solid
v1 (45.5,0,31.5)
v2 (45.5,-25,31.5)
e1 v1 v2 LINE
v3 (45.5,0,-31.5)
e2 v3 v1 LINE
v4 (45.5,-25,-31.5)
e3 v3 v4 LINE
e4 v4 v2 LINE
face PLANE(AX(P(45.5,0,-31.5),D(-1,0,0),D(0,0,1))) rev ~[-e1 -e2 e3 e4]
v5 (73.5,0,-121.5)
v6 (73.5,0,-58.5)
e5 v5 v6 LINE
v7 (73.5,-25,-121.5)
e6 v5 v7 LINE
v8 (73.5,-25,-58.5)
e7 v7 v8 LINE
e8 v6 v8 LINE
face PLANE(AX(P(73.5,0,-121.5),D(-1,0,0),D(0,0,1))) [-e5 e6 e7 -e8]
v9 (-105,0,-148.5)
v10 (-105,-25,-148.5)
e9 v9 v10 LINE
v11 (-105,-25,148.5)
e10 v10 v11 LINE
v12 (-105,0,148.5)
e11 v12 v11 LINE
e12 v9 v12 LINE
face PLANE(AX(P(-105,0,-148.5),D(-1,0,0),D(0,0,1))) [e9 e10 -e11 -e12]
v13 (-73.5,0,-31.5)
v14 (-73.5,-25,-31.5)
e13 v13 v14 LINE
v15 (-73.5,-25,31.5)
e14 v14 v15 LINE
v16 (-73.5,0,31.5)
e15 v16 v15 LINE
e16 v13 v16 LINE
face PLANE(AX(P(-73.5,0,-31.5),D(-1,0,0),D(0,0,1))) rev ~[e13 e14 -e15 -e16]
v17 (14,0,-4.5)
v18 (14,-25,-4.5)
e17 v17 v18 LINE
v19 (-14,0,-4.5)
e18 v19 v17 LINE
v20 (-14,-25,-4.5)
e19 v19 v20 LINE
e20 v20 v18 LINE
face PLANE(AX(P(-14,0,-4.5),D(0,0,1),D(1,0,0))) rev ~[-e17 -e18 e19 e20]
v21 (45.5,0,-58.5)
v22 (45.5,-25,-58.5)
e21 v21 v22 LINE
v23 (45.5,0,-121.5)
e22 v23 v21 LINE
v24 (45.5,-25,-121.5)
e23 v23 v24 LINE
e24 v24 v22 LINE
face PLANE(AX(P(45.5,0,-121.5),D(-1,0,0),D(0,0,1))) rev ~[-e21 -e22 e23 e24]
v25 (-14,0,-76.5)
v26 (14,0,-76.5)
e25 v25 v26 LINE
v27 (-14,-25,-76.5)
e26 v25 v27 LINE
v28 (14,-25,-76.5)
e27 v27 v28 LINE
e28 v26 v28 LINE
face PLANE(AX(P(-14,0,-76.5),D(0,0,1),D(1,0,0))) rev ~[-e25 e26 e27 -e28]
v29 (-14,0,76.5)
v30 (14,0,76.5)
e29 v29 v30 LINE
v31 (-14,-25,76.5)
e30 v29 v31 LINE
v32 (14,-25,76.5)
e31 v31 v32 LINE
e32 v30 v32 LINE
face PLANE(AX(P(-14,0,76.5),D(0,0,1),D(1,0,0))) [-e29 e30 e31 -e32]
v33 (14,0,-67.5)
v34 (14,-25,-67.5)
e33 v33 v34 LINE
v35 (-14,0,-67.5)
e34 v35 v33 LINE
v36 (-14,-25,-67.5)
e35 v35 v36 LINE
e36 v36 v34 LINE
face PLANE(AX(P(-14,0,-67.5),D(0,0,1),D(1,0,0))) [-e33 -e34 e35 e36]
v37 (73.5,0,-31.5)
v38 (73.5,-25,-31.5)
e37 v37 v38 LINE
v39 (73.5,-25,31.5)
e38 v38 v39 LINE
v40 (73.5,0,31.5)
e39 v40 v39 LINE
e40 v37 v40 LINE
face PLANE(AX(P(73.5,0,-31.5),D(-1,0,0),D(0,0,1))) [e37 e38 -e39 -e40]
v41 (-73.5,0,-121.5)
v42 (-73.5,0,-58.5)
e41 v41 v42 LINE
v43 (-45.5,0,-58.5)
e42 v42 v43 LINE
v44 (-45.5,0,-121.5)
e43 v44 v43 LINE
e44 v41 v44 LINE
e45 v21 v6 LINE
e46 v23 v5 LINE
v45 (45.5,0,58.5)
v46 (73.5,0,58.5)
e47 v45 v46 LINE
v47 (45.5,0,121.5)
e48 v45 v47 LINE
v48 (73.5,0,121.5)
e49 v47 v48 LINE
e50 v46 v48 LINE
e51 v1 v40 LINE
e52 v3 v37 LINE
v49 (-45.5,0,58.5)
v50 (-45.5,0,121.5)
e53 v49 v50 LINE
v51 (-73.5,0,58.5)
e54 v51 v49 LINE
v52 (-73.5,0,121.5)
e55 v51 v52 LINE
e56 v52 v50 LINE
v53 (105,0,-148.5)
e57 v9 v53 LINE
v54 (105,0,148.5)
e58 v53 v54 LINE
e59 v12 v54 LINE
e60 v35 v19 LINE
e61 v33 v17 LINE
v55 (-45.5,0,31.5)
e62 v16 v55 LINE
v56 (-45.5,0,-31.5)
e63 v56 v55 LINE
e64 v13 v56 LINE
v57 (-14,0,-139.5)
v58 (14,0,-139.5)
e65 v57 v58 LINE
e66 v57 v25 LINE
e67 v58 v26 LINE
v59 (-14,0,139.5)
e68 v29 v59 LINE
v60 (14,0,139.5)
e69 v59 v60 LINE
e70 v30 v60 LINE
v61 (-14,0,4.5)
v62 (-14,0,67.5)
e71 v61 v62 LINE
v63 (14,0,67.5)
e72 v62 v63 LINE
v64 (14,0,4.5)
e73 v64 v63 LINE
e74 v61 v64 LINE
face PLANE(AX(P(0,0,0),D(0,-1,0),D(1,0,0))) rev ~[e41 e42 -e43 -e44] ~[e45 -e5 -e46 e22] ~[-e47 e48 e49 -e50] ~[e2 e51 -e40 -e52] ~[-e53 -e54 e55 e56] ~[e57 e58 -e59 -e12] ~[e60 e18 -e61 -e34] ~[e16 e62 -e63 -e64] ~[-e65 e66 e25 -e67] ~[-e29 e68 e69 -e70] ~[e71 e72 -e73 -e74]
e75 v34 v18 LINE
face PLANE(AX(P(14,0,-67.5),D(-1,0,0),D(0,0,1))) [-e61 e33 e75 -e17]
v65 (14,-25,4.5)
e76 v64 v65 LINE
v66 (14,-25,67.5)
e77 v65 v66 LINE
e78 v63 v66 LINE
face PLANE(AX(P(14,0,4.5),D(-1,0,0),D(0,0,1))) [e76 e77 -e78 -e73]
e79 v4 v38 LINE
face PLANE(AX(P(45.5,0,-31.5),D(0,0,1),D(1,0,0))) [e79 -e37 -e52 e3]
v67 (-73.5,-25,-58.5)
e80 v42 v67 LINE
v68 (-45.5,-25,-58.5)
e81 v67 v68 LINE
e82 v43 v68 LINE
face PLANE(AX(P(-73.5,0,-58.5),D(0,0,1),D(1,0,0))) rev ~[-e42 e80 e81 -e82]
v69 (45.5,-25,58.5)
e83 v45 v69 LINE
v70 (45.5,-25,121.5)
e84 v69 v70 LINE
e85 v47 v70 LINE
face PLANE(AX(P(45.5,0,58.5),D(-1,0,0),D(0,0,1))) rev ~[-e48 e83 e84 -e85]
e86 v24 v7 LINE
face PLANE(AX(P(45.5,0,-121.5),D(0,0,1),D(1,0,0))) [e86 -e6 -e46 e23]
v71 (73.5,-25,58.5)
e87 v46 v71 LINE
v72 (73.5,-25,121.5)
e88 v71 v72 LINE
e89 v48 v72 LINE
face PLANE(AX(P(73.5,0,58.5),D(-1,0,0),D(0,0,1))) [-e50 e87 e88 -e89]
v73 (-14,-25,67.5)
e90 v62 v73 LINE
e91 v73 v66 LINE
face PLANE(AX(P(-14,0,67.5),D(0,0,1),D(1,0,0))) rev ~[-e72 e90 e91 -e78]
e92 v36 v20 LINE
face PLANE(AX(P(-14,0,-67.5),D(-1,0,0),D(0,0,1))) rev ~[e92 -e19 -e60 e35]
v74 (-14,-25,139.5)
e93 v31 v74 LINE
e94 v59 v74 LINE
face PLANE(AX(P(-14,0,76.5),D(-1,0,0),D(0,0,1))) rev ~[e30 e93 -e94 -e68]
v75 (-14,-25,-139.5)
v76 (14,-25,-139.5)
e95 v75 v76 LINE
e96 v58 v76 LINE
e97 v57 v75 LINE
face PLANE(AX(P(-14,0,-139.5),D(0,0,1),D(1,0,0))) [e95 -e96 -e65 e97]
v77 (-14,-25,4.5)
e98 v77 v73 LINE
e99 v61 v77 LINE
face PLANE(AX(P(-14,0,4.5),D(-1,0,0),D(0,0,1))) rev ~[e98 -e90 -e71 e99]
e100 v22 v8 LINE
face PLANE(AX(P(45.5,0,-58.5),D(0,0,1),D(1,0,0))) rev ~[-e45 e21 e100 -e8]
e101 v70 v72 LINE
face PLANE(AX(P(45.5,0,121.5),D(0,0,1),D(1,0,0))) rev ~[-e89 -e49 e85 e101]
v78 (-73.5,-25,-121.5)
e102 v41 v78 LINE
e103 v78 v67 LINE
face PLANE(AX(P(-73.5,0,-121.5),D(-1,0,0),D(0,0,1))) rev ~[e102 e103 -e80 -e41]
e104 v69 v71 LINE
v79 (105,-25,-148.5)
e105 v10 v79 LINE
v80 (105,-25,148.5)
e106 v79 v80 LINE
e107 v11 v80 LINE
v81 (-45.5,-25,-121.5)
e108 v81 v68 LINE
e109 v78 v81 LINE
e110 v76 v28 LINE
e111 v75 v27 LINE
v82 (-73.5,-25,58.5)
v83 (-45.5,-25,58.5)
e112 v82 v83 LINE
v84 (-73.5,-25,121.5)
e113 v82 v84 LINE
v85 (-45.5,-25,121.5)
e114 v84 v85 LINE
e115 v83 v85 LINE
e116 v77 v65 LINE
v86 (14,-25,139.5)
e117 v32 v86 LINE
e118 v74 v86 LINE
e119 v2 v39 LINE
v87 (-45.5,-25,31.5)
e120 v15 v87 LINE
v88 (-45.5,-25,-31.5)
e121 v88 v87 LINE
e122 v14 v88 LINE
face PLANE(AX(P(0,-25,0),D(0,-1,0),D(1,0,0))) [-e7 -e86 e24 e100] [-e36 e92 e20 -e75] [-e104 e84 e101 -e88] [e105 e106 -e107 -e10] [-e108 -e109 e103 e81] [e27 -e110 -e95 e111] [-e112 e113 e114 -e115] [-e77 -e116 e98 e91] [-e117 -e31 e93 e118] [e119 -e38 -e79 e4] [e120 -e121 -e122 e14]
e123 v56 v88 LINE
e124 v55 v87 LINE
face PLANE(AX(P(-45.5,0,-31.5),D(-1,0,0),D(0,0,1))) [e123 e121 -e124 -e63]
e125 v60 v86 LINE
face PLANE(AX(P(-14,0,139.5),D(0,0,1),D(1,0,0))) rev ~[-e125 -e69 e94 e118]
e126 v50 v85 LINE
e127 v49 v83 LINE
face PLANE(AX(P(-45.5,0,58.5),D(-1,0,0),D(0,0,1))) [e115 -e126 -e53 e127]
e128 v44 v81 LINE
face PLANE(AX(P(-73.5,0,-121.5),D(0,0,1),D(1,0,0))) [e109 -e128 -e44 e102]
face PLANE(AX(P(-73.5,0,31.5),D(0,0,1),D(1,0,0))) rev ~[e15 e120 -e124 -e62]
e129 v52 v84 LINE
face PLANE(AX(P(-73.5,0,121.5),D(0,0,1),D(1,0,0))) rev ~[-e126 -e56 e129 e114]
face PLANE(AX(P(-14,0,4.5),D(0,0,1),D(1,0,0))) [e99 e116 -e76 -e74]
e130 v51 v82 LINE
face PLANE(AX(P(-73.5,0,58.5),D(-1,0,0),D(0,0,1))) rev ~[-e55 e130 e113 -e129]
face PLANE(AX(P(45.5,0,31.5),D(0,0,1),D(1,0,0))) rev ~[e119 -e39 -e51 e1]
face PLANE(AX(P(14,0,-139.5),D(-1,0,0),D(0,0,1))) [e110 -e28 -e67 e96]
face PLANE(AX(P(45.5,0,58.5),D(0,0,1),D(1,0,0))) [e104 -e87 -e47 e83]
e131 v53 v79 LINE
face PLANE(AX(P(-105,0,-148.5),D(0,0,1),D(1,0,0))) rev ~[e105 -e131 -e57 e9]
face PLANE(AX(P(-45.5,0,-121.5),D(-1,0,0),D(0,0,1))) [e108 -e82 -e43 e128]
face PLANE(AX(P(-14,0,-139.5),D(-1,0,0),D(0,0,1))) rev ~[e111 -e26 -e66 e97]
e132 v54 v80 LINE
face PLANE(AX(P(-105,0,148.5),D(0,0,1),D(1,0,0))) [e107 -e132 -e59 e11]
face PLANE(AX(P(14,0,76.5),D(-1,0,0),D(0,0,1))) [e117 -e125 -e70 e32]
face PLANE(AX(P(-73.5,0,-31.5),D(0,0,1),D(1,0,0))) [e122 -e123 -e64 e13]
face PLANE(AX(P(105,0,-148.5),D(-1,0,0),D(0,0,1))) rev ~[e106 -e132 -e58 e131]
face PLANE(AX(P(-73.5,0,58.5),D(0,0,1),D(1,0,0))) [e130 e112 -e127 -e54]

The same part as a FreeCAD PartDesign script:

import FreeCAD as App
import Part
import Sketcher
from FreeCAD import Vector


def add_polygon(sketch, points):
    """Adds a closed chain of lines whose ends are joined by coincident constraints."""
    first, n = sketch.GeometryCount, len(points)
    for a, b in zip(points, points[1:] + points[:1]):
        sketch.addGeometry(Part.LineSegment(App.Vector(*a, 0), App.Vector(*b, 0)), False)
    for i in range(n):
        sketch.addConstraint(Sketcher.Constraint("Coincident", first + i, 2, first + (i + 1) % n, 1))

doc = App.newDocument("Part")
params = doc.addObject("Spreadsheet::Sheet", "Params")
for row, (alias, value) in enumerate([
    ("sketch1_width", "210 mm"),
    ("sketch1_width2", "28 mm"),
    ("sketch1_height", "297 mm"),
    ("sketch1_height2", "63 mm"),
    ("pad1_length", "25 mm"),
], start=1):
    params.set(f"A{row}", alias)
    params.set(f"B{row}", "=" + value)
    params.setAlias(f"B{row}", alias)

body = doc.addObject("PartDesign::Body", "Body")

sketch1 = body.newObject("Sketcher::SketchObject", "Sketch")
sketch1.AttachmentSupport = (doc.getObject("XZ_Plane"), [""])
sketch1.MapMode = "FlatFace"
add_polygon(sketch1, [(-105, 148.5), (-105, -148.5), (105, -148.5), (105, 148.5)])
add_polygon(sketch1, [(-45.5, -121.5), (-73.5, -121.5), (-73.5, -58.5), (-45.5, -58.5)])
add_polygon(sketch1, [(14, -139.5), (-14, -139.5), (-14, -76.5), (14, -76.5)])
add_polygon(sketch1, [(73.5, -121.5), (45.5, -121.5), (45.5, -58.5), (73.5, -58.5)])
add_polygon(sketch1, [(14, -67.5), (-14, -67.5), (-14, -4.5), (14, -4.5)])
add_polygon(sketch1, [(-45.5, -31.5), (-73.5, -31.5), (-73.5, 31.5), (-45.5, 31.5)])
add_polygon(sketch1, [(-45.5, 58.5), (-73.5, 58.5), (-73.5, 121.5), (-45.5, 121.5)])
add_polygon(sketch1, [(14, 4.5), (-14, 4.5), (-14, 67.5), (14, 67.5)])
add_polygon(sketch1, [(73.5, -31.5), (45.5, -31.5), (45.5, 31.5), (73.5, 31.5)])
add_polygon(sketch1, [(14, 76.5), (-14, 76.5), (-14, 139.5), (14, 139.5)])
add_polygon(sketch1, [(73.5, 58.5), (45.5, 58.5), (45.5, 121.5), (73.5, 121.5)])
sketch1.addConstraint([
    Sketcher.Constraint("Vertical", 0),
    Sketcher.Constraint("Horizontal", 1),
    Sketcher.Constraint("Vertical", 2),
    Sketcher.Constraint("Horizontal", 3),
    Sketcher.Constraint("Horizontal", 4),
    Sketcher.Constraint("Vertical", 5),
    Sketcher.Constraint("Horizontal", 6),
    Sketcher.Constraint("Vertical", 7),
    Sketcher.Constraint("Horizontal", 8),
    Sketcher.Constraint("Vertical", 9),
    Sketcher.Constraint("Horizontal", 10),
    Sketcher.Constraint("Vertical", 11),
    Sketcher.Constraint("Horizontal", 12),
    Sketcher.Constraint("Vertical", 13),
    Sketcher.Constraint("Horizontal", 14),
    Sketcher.Constraint("Vertical", 15),
    Sketcher.Constraint("Horizontal", 16),
    Sketcher.Constraint("Vertical", 17),
    Sketcher.Constraint("Horizontal", 18),
    Sketcher.Constraint("Vertical", 19),
    Sketcher.Constraint("Horizontal", 20),
    Sketcher.Constraint("Vertical", 21),
    Sketcher.Constraint("Horizontal", 22),
    Sketcher.Constraint("Vertical", 23),
    Sketcher.Constraint("Horizontal", 24),
    Sketcher.Constraint("Vertical", 25),
    Sketcher.Constraint("Horizontal", 26),
    Sketcher.Constraint("Vertical", 27),
    Sketcher.Constraint("Horizontal", 28),
    Sketcher.Constraint("Vertical", 29),
    Sketcher.Constraint("Horizontal", 30),
    Sketcher.Constraint("Vertical", 31),
    Sketcher.Constraint("Horizontal", 32),
    Sketcher.Constraint("Vertical", 33),
    Sketcher.Constraint("Horizontal", 34),
    Sketcher.Constraint("Vertical", 35),
    Sketcher.Constraint("Horizontal", 36),
    Sketcher.Constraint("Vertical", 37),
    Sketcher.Constraint("Horizontal", 38),
    Sketcher.Constraint("Vertical", 39),
    Sketcher.Constraint("Horizontal", 40),
    Sketcher.Constraint("Vertical", 41),
    Sketcher.Constraint("Horizontal", 42),
    Sketcher.Constraint("Vertical", 43),
    Sketcher.Constraint("Symmetric", 0, 2, 2, 2, -1, 1),
    Sketcher.Constraint("Symmetric", 14, 2, 24, 2, -1, 1),
    Sketcher.Constraint("Symmetric", 12, 2, 26, 2, -1, 1),
    Sketcher.Constraint("Symmetric", 18, 2, 28, 2, -1, 1),
    Sketcher.Constraint("Symmetric", 16, 2, 30, 2, -1, 1),
    Sketcher.Constraint("Symmetric", 22, 2, 32, 2, -1, 1),
    Sketcher.Constraint("Symmetric", 20, 2, 34, 2, -1, 1),
    Sketcher.Constraint("Symmetric", 10, 2, 36, 2, -1, 1),
    Sketcher.Constraint("Symmetric", 8, 2, 38, 2, -1, 1),
    Sketcher.Constraint("Symmetric", 6, 2, 40, 2, -1, 1),
    Sketcher.Constraint("Symmetric", 4, 2, 42, 2, -1, 1),
    Sketcher.Constraint("Symmetric", 7, 2, 12, 2, -2),
    Sketcher.Constraint("Symmetric", 5, 2, 14, 2, -2),
    Sketcher.Constraint("Horizontal", 23, 2, 32, 2),
    Sketcher.Constraint("Vertical", 9, 2, 16, 2),
    Sketcher.Constraint("Vertical", 11, 2, 18, 2),
    Sketcher.Constraint("Vertical", 5, 2, 20, 2),
    Sketcher.Constraint("Vertical", 7, 2, 22, 2),
    Sketcher.Constraint("Vertical", 17, 2, 28, 2),
    Sketcher.Constraint("Equal", 6, 8),
    Sketcher.Constraint("Equal", 7, 9),
    Sketcher.Constraint("Equal", 15, 17),
    Sketcher.Constraint("Equal", 19, 21),
    Sketcher.Constraint("DistanceX", 1, 1, 1, 2, 210.0),
    Sketcher.Constraint("DistanceX", 4, 2, 4, 1, 28.0),
    Sketcher.Constraint("DistanceY", 0, 2, 0, 1, 297.0),
    Sketcher.Constraint("DistanceY", 5, 1, 5, 2, 63.0),
    Sketcher.Constraint("DistanceY", 0, 2, 4, 2, 27.0),
    Sketcher.Constraint("DistanceY", 8, 2, 7, 2, 18.0),
    Sketcher.Constraint("DistanceX", 6, 2, 13, 2, 91.0),
    Sketcher.Constraint("DistanceY", 9, 2, 16, 2, 9.0),
])
sketch1.setExpression("Constraints[111]", "Params.sketch1_width")
sketch1.setExpression("Constraints[112]", "Params.sketch1_width2")
sketch1.setExpression("Constraints[113]", "Params.sketch1_height")
sketch1.setExpression("Constraints[114]", "Params.sketch1_height2")
pad1 = body.newObject("PartDesign::Pad", "Pad")
pad1.Profile = sketch1
pad1.setExpression("Length", "Params.pad1_length")

doc.recompute()
